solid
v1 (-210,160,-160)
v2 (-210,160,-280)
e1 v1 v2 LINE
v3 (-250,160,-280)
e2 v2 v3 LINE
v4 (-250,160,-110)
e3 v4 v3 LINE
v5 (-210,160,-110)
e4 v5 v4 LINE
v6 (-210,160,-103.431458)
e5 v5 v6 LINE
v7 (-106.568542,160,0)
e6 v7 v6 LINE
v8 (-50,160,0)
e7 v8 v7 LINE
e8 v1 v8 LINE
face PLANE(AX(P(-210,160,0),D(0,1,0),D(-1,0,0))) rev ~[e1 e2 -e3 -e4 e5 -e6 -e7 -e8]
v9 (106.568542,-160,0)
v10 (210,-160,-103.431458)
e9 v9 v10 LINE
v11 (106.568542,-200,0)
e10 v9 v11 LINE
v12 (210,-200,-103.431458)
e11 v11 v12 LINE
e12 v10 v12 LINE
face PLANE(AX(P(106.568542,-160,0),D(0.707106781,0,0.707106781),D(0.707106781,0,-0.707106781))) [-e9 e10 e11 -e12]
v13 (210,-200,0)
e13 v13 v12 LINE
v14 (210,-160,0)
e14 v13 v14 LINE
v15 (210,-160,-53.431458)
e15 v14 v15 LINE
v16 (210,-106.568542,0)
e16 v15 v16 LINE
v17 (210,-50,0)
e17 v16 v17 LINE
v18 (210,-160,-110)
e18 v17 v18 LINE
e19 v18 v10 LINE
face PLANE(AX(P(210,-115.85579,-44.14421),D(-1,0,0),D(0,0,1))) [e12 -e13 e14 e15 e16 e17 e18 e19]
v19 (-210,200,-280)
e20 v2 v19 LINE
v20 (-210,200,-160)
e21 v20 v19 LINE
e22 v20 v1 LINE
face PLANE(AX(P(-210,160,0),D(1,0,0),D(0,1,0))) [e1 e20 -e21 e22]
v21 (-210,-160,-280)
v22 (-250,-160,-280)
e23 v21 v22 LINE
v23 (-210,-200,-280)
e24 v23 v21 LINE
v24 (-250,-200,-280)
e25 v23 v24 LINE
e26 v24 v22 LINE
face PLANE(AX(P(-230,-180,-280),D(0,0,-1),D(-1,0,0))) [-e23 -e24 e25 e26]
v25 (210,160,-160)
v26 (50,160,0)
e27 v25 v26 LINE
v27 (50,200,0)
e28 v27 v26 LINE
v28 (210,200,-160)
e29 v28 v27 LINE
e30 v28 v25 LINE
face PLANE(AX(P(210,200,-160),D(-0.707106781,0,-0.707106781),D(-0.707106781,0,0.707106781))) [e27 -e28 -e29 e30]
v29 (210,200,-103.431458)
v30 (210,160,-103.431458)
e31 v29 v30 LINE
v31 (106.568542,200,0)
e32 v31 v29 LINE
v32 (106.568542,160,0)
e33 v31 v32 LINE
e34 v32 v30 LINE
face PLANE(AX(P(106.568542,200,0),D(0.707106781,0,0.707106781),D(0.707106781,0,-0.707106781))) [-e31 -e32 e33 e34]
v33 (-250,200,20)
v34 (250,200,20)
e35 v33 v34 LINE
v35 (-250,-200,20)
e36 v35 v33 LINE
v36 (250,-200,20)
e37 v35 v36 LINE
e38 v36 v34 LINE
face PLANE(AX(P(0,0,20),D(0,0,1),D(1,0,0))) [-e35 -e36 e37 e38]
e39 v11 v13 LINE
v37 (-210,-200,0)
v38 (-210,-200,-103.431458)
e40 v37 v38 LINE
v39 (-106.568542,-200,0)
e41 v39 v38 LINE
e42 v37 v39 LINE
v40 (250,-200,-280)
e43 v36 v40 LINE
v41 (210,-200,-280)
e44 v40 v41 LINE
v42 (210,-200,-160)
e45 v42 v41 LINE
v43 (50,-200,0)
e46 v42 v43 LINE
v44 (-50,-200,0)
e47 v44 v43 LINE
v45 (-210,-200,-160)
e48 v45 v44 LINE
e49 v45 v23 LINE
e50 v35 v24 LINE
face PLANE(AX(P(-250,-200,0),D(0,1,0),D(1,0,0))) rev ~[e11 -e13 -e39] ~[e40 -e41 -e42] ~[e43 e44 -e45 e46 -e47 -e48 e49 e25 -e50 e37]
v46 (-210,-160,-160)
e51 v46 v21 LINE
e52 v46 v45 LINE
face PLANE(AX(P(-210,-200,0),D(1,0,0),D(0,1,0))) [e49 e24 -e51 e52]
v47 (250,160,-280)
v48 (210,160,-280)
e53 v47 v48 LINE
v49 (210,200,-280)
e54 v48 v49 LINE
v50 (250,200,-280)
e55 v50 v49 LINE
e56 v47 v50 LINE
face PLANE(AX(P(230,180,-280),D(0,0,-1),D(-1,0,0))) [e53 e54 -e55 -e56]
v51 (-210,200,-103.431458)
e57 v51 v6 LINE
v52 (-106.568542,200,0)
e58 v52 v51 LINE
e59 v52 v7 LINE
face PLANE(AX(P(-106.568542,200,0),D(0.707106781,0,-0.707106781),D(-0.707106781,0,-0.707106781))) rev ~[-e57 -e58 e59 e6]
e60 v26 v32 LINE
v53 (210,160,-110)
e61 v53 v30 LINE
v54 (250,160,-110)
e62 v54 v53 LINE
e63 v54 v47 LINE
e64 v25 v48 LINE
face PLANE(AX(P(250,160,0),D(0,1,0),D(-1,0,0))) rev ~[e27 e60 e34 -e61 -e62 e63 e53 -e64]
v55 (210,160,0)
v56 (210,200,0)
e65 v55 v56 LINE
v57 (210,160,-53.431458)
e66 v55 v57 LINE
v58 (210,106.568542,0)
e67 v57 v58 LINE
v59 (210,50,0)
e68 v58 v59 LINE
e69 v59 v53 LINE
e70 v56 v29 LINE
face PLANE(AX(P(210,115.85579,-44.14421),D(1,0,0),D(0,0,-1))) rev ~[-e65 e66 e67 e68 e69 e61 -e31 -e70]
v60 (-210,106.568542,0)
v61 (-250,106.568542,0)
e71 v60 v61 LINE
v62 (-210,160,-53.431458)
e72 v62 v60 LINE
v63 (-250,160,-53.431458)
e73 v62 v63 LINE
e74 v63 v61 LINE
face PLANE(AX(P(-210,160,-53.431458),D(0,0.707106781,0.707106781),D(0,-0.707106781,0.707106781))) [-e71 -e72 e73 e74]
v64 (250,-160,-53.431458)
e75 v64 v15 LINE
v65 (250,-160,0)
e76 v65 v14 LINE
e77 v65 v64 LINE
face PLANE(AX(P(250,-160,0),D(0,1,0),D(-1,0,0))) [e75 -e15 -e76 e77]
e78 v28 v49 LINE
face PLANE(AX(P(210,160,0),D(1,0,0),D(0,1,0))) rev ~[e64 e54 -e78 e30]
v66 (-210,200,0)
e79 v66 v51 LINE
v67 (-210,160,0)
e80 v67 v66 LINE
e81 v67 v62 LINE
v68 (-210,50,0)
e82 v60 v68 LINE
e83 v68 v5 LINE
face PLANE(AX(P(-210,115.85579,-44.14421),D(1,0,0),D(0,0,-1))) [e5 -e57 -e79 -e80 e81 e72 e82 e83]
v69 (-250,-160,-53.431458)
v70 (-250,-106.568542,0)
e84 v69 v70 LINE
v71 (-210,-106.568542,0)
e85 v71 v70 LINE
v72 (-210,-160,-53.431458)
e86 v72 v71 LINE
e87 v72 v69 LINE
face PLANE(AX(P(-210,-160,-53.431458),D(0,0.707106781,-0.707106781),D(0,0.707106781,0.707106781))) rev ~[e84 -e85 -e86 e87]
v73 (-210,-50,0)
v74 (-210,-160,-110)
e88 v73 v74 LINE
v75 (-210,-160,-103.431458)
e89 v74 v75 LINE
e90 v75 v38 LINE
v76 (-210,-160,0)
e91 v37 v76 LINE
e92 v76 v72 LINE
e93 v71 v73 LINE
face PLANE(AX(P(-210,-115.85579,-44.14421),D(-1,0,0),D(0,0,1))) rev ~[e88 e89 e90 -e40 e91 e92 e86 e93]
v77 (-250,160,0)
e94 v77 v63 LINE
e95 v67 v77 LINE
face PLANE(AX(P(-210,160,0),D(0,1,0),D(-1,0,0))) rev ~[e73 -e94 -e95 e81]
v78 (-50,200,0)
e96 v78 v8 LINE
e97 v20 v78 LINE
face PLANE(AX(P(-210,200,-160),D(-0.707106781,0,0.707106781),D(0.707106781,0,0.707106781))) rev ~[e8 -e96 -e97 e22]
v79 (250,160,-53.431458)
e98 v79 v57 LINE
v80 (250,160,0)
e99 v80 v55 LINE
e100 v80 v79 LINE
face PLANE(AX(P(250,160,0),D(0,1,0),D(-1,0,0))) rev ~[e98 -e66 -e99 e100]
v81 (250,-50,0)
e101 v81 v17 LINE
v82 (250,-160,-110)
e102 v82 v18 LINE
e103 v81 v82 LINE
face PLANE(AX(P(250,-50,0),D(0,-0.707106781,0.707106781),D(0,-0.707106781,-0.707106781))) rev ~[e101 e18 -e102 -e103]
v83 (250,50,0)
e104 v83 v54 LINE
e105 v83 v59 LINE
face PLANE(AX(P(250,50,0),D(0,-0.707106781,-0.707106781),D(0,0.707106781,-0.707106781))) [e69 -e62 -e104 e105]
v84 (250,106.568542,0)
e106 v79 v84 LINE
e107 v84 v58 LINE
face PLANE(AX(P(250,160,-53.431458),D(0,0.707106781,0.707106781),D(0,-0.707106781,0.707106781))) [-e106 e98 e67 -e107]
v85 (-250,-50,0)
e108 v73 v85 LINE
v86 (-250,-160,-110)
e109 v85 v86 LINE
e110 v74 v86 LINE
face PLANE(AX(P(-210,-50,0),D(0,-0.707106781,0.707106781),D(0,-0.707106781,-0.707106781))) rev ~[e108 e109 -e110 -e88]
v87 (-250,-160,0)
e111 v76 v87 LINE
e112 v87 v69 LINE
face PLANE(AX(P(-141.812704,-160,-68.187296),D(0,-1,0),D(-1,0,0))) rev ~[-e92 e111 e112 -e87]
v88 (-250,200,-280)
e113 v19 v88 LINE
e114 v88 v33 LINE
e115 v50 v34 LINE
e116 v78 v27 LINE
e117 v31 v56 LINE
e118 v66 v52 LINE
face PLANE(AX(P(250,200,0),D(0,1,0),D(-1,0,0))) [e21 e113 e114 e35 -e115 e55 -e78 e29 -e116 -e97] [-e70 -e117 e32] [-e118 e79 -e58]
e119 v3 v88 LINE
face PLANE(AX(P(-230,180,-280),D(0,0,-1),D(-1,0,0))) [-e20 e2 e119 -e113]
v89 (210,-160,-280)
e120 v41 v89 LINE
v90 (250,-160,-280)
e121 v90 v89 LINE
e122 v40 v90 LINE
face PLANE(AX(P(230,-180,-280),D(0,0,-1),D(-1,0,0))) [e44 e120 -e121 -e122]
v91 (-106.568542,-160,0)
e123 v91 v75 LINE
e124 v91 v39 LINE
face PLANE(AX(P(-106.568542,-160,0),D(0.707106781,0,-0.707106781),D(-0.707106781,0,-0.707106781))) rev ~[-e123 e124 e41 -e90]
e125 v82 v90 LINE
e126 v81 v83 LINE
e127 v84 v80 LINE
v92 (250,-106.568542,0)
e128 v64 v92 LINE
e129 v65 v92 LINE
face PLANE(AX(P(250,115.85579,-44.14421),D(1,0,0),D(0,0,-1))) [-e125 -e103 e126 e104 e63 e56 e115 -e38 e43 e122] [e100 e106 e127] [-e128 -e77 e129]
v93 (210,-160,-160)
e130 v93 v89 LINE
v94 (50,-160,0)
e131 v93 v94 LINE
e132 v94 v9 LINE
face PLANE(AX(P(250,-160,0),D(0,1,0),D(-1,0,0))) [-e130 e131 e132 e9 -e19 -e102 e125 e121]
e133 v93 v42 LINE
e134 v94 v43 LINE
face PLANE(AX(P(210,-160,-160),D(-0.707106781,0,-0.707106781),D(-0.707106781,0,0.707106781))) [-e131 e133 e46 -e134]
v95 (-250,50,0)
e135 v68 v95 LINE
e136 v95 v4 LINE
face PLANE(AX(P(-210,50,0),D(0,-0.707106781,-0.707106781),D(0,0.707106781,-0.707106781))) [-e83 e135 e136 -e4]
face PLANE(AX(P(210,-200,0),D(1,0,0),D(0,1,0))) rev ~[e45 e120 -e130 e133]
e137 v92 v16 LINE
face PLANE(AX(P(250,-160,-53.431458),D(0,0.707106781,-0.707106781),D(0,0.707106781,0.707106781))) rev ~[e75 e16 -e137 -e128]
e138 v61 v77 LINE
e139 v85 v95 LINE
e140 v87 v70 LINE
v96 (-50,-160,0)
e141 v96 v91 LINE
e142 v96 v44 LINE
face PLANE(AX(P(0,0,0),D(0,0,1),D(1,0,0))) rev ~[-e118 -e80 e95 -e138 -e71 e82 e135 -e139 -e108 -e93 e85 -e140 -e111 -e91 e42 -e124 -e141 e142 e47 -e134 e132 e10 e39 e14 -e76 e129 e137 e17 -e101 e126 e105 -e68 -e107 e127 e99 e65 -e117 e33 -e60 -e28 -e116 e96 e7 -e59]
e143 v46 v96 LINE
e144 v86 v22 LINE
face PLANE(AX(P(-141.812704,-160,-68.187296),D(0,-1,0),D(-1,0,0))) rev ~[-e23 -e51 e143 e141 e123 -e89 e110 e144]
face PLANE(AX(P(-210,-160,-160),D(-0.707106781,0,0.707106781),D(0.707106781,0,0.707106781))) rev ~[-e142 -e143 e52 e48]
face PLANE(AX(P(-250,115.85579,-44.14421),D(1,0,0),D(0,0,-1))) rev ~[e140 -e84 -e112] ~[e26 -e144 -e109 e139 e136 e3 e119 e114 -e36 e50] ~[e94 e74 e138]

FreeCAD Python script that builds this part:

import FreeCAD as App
import Part
import Sketcher

V = App.Vector
Q = App.Units.Quantity


def add_polygon(sketch, points):
    """Adds a closed chain of lines whose ends are joined by coincident constraints."""
    first, n = sketch.GeometryCount, len(points)
    for a, b in zip(points, points[1:] + points[:1]):
        sketch.addGeometry(Part.LineSegment(App.Vector(*a, 0), App.Vector(*b, 0)), False)
    for i in range(n):
        sketch.addConstraint(Sketcher.Constraint("Coincident", first + i, 2, first + (i + 1) % n, 1))

doc = App.newDocument("Part")
body = doc.addObject("PartDesign::Body", "Body")

# Sketch on XY plane
sketch1 = body.newObject("Sketcher::SketchObject", "Sketch")
sketch1.AttachmentSupport = (doc.getObject("XY_Plane"), [""])
sketch1.MapMode = "FlatFace"
add_polygon(sketch1, [(-250, 200), (-250, -200), (250, -200), (250, 200)])  # lines 0-3
sketch1.addConstraint([
    Sketcher.Constraint("Vertical", 0),
    Sketcher.Constraint("Horizontal", 1),
    Sketcher.Constraint("Vertical", 2),
    Sketcher.Constraint("Horizontal", 3),
    Sketcher.Constraint("Symmetric", 0, 2, 2, 2, -1, 1),
    Sketcher.Constraint("DistanceX", 1, 1, 1, 2, Q("500 mm")),
    Sketcher.Constraint("DistanceY", 0, 2, 0, 1, Q("400 mm")),
])
pad1 = body.newObject("PartDesign::Pad", "Pad")
pad1.Profile = sketch1
pad1.Length = 20

# Sketch on XY plane
sketch2 = body.newObject("Sketcher::SketchObject", "Sketch001")
sketch2.AttachmentSupport = (doc.getObject("XY_Plane"), [""])
sketch2.MapMode = "FlatFace"
add_polygon(sketch2, [(250, 200), (250, 160), (210, 160), (210, 200)])  # lines 0-3
add_polygon(sketch2, [(-210, 200), (-210, 160), (-250, 160), (-250, 200)])  # lines 4-7
add_polygon(sketch2, [(-210, -160), (-210, -200), (-250, -200), (-250, -160)])  # lines 8-11
add_polygon(sketch2, [(250, -160), (250, -200), (210, -200), (210, -160)])  # lines 12-15
sketch2.addConstraint([
    Sketcher.Constraint("Vertical", 0),
    Sketcher.Constraint("Horizontal", 1),
    Sketcher.Constraint("Vertical", 2),
    Sketcher.Constraint("Horizontal", 3),
    Sketcher.Constraint("Vertical", 4),
    Sketcher.Constraint("Horizontal", 5),
    Sketcher.Constraint("Vertical", 6),
    Sketcher.Constraint("Horizontal", 7),
    Sketcher.Constraint("Vertical", 8),
    Sketcher.Constraint("Horizontal", 9),
    Sketcher.Constraint("Vertical", 10),
    Sketcher.Constraint("Horizontal", 11),
    Sketcher.Constraint("Vertical", 12),
    Sketcher.Constraint("Horizontal", 13),
    Sketcher.Constraint("Vertical", 14),
    Sketcher.Constraint("Horizontal", 15),
    Sketcher.Constraint("Symmetric", 2, 2, 8, 2, -1, 1),
    Sketcher.Constraint("Symmetric", 0, 2, 10, 2, -1, 1),
    Sketcher.Constraint("Symmetric", 6, 2, 12, 2, -1, 1),
    Sketcher.Constraint("Symmetric", 4, 2, 14, 2, -1, 1),
    Sketcher.Constraint("Symmetric", 1, 2, 4, 2, -2),
    Sketcher.Constraint("Symmetric", 3, 2, 6, 2, -2),
    Sketcher.Constraint("Equal", 15, 0),
    Sketcher.Constraint("DistanceX", 1, 2, 1, 1, Q("40 mm")),
    Sketcher.Constraint("DistanceX", -1, 1, 0, 2, Q("250 mm")),
    Sketcher.Constraint("DistanceY", -1, 1, 0, 2, Q("160 mm")),
])
pad2 = body.newObject("PartDesign::Pad", "Pad001")
pad2.Profile = sketch2
pad2.Length = 280
pad2.Reversed = True

# Sketch on XZ plane
sketch3 = body.newObject("Sketcher::SketchObject", "Sketch002")
sketch3.AttachmentSupport = (doc.getObject("XZ_Plane"), [""])
sketch3.MapMode = "FlatFace"
sketch3.AttachmentOffset = App.Placement(V(0, 0, -200), App.Rotation())
add_polygon(sketch3, [(-50, 0), (-210, -160), (-210, -103), (-107, 0)])  # lines 0-3
add_polygon(sketch3, [(107, 0), (210, -103), (210, -160), (50, 0)])  # lines 4-7
sketch3.addConstraint([
    Sketcher.Constraint("Vertical", 1),
    Sketcher.Constraint("Horizontal", 3),
    Sketcher.Constraint("Vertical", 5),
    Sketcher.Constraint("Horizontal", 7),
    Sketcher.Constraint("Symmetric", 3, 2, 6, 2, -1, 1),
    Sketcher.Constraint("Symmetric", 1, 2, 4, 2, -2),
    Sketcher.Constraint("Symmetric", 2, 2, 7, 2, -2),
    Sketcher.Constraint("Parallel", 0, 2),
    Sketcher.Constraint("Perpendicular", 2, 4),
    Sketcher.Constraint("Parallel", 4, 6),
    Sketcher.Constraint("DistanceX", 0, 2, -1, 1, Q("210 mm")),
    Sketcher.Constraint("DistanceY", 0, 2, -1, 1, Q("160 mm")),
    Sketcher.Constraint("Distance", 2, Q("146.27417 mm")),
])
pad3 = body.newObject("PartDesign::Pad", "Pad002")
pad3.Profile = sketch3
pad3.Length = 40

# Sketch on XZ plane
sketch4 = body.newObject("Sketcher::SketchObject", "Sketch003")
sketch4.AttachmentSupport = (doc.getObject("XZ_Plane"), [""])
sketch4.MapMode = "FlatFace"
sketch4.AttachmentOffset = App.Placement(V(0, 0, 160), App.Rotation())
add_polygon(sketch4, [(-50, 0), (-210, -160), (-210, -103), (-107, 0)])  # lines 0-3
add_polygon(sketch4, [(107, 0), (210, -103), (210, -160), (50, 0)])  # lines 4-7
sketch4.addConstraint([
    Sketcher.Constraint("Vertical", 1),
    Sketcher.Constraint("Horizontal", 3),
    Sketcher.Constraint("Vertical", 5),
    Sketcher.Constraint("Horizontal", 7),
    Sketcher.Constraint("Symmetric", 3, 2, 6, 2, -1, 1),
    Sketcher.Constraint("Symmetric", 1, 2, 4, 2, -2),
    Sketcher.Constraint("Symmetric", 2, 2, 7, 2, -2),
    Sketcher.Constraint("Parallel", 0, 2),
    Sketcher.Constraint("Perpendicular", 2, 4),
    Sketcher.Constraint("Parallel", 4, 6),
    Sketcher.Constraint("DistanceX", 0, 2, -1, 1, Q("210 mm")),
    Sketcher.Constraint("DistanceY", 0, 2, -1, 1, Q("160 mm")),
    Sketcher.Constraint("Distance", 2, Q("146.27417 mm")),
])
pad4 = body.newObject("PartDesign::Pad", "Pad003")
pad4.Profile = sketch4
pad4.Length = 40

# Sketch on YZ plane
sketch5 = body.newObject("Sketcher::SketchObject", "Sketch004")
sketch5.AttachmentSupport = (doc.getObject("YZ_Plane"), [""])
sketch5.MapMode = "FlatFace"
sketch5.AttachmentOffset = App.Placement(V(0, 0, 250), App.Rotation())
add_polygon(sketch5, [(50, 0), (160, -110), (160, -53), (107, 0)])  # lines 0-3
add_polygon(sketch5, [(-107, 0), (-160, -53), (-160, -110), (-50, 0)])  # lines 4-7
sketch5.addConstraint([
    Sketcher.Constraint("Vertical", 1),
    Sketcher.Constraint("Horizontal", 3),
    Sketcher.Constraint("Vertical", 5),
    Sketcher.Constraint("Horizontal", 7),
    Sketcher.Constraint("Symmetric", 3, 2, 6, 2, -1, 1),
    Sketcher.Constraint("Symmetric", 1, 2, 4, 2, -2),
    Sketcher.Constraint("Symmetric", 2, 2, 7, 2, -2),
    Sketcher.Constraint("Parallel", 0, 2),
    Sketcher.Constraint("Perpendicular", 2, 4),
    Sketcher.Constraint("Parallel", 4, 6),
    Sketcher.Constraint("DistanceX", -1, 1, 0, 2, Q("160 mm")),
    Sketcher.Constraint("DistanceY", 0, 2, -1, 1, Q("110 mm")),
    Sketcher.Constraint("Distance", 2, Q("75.563492 mm")),
])
pad5 = body.newObject("PartDesign::Pad", "Pad004")
pad5.Profile = sketch5
pad5.Length = 40
pad5.Reversed = True

# Sketch on YZ plane
sketch6 = body.newObject("Sketcher::SketchObject", "Sketch005")
sketch6.AttachmentSupport = (doc.getObject("YZ_Plane"), [""])
sketch6.MapMode = "FlatFace"
sketch6.AttachmentOffset = App.Placement(V(0, 0, -210), App.Rotation())
add_polygon(sketch6, [(50, 0), (160, -110), (160, -53), (107, 0)])  # lines 0-3
add_polygon(sketch6, [(-107, 0), (-160, -53), (-160, -110), (-50, 0)])  # lines 4-7
sketch6.addConstraint([
    Sketcher.Constraint("Vertical", 1),
    Sketcher.Constraint("Horizontal", 3),
    Sketcher.Constraint("Vertical", 5),
    Sketcher.Constraint("Horizontal", 7),
    Sketcher.Constraint("Symmetric", 3, 2, 6, 2, -1, 1),
    Sketcher.Constraint("Symmetric", 1, 2, 4, 2, -2),
    Sketcher.Constraint("Symmetric", 2, 2, 7, 2, -2),
    Sketcher.Constraint("Parallel", 0, 2),
    Sketcher.Constraint("Perpendicular", 2, 4),
    Sketcher.Constraint("Parallel", 4, 6),
    Sketcher.Constraint("DistanceX", -1, 1, 0, 2, Q("160 mm")),
    Sketcher.Constraint("DistanceY", 0, 2, -1, 1, Q("110 mm")),
    Sketcher.Constraint("Distance", 2, Q("75.563492 mm")),
])
pad6 = body.newObject("PartDesign::Pad", "Pad005")
pad6.Profile = sketch6
pad6.Length = 40
pad6.Reversed = True

doc.recompute()
